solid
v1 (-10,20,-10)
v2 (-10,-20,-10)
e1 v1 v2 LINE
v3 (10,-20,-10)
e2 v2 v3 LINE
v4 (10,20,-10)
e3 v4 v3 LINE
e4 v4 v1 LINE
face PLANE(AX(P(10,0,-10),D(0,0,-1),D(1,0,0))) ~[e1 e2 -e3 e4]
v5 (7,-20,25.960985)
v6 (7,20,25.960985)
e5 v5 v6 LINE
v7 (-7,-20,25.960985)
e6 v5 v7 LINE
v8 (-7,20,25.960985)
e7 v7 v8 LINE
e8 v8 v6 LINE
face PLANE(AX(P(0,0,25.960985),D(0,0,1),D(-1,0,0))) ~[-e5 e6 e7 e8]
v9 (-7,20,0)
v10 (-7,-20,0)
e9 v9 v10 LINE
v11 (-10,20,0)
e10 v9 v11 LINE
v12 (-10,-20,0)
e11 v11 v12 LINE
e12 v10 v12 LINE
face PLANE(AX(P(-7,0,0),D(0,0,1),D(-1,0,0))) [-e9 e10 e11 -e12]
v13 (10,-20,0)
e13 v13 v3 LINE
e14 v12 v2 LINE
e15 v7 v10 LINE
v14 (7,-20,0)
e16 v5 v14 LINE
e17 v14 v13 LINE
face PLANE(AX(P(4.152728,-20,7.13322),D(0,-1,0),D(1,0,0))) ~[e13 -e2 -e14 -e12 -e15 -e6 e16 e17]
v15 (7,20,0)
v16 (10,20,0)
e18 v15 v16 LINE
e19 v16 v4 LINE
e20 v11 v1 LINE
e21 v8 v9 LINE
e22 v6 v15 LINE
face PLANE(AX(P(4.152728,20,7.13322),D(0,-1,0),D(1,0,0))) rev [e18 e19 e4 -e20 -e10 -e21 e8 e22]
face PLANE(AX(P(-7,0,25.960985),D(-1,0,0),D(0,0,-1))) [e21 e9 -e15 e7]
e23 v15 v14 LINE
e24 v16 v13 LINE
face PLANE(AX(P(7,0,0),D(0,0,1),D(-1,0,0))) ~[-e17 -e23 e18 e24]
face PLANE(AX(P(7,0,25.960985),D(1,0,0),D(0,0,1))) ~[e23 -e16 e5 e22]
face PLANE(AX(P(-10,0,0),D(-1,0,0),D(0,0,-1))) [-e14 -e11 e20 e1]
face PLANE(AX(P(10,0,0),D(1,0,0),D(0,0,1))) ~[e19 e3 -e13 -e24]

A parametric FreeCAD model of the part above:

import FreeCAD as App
import Part
import Sketcher


def add_polygon(sketch, points):
    """Adds a closed chain of lines whose ends are joined by coincident constraints."""
    first, n = sketch.GeometryCount, len(points)
    for a, b in zip(points, points[1:] + points[:1]):
        sketch.addGeometry(Part.LineSegment(App.Vector(*a, 0), App.Vector(*b, 0)), False)
    for i in range(n):
        sketch.addConstraint(Sketcher.Constraint("Coincident", first + i, 2, first + (i + 1) % n, 1))

doc = App.newDocument("Part")
params = doc.addObject("Spreadsheet::Sheet", "Params")
for row, (alias, value) in enumerate([
    ("sketch1_width", "3 mm"),
    ("sketch1_width2", "10 mm"),
    ("pad1_length", "40 mm"),
], start=1):
    params.set(f"A{row}", alias)
    params.set(f"B{row}", "=" + value)
    params.setAlias(f"B{row}", alias)

body = doc.addObject("PartDesign::Body", "Body")

# Sketch on XZ plane
sketch1 = body.newObject("Sketcher::SketchObject", "Sketch")
sketch1.AttachmentSupport = (doc.getObject("XZ_Plane"), [""])
sketch1.MapMode = "FlatFace"
add_polygon(sketch1, [(-7, 26), (-7, 0), (-10, 0), (-10, -10), (0, -10), (0, 26)])  # lines 0-5
sketch1.addConstraint(Sketcher.Constraint("Vertical", 0))
sketch1.addConstraint(Sketcher.Constraint("Horizontal", 1))
sketch1.addConstraint(Sketcher.Constraint("Vertical", 2))
sketch1.addConstraint(Sketcher.Constraint("Horizontal", 3))
sketch1.addConstraint(Sketcher.Constraint("Vertical", 4))
sketch1.addConstraint(Sketcher.Constraint("Horizontal", 5))
sketch1.addConstraint(Sketcher.Constraint("PointOnObject", 0, 2, -1))
sketch1.addConstraint(Sketcher.Constraint("PointOnObject", 3, 2, -2))
sketch1.addConstraint(Sketcher.Constraint("Equal", 3, 2))
sketch1.addConstraint(Sketcher.Constraint("DistanceX", 1, 2, 1, 1, 3.0))
sketch1.addConstraint(Sketcher.Constraint("DistanceX", 3, 1, 3, 2, 10.0))
sketch1.addConstraint(Sketcher.Constraint("DistanceY", 0, 2, 0, 1, 25.960985))
sketch1.setExpression("Constraints[15]", "Params.sketch1_width")
sketch1.setExpression("Constraints[16]", "Params.sketch1_width2")
pad1 = body.newObject("PartDesign::Pad", "Pad")
pad1.Profile = sketch1
pad1.setExpression("Length", "Params.pad1_length")
pad1.Midplane = True
body2 = doc.addObject("PartDesign::Body", "Body001")
doc.recompute()

body2.BaseFeature = body
doc.recompute()

mirroring = doc.addObject("Part::Mirroring", "Mirroring")
mirroring.Source = body
mirroring.Base = App.Vector(0, 0, 7.980493)
mirroring.Normal = App.Vector(1, 0, 0)
body3 = doc.addObject("PartDesign::Body", "Body002")
body3.BaseFeature = mirroring
boolean = body2.newObject("PartDesign::Boolean", "Boolean")
boolean.Type = "Fuse"
boolean.addObjects([body3])
doc.recompute()
mirroring.Visibility = False

doc.recompute()
